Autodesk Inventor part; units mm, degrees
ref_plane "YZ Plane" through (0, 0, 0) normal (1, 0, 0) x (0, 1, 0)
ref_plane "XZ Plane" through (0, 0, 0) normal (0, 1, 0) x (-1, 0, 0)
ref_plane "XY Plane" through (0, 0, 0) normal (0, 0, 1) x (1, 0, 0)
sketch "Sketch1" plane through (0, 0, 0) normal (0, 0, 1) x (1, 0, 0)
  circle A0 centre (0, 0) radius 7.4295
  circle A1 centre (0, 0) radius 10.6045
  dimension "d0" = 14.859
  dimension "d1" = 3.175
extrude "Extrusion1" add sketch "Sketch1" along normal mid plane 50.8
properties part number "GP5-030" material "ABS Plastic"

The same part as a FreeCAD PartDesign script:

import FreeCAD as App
import Part
import Sketcher
Q = App.Units.Quantity

doc = App.newDocument("Part")
params = doc.addObject("Spreadsheet::Sheet", "Params")
for row, (alias, value) in enumerate([
    ("sketch1_diameter", "0.585 in"),
    ("sketch1_diameter2", "0.835 in"),
    ("pad1_length", "2 in"),
], start=1):
    params.set(f"A{row}", alias)
    params.set(f"B{row}", "=" + value)
    params.setAlias(f"B{row}", alias)

body = doc.addObject("PartDesign::Body", "Body")

sketch1 = body.newObject("Sketcher::SketchObject", "Sketch")
sketch1.AttachmentSupport = (doc.getObject("XY_Plane"), [""])
sketch1.MapMode = "FlatFace"
sketch1.addGeometry([
    Part.Circle(App.Vector(0, 0, 0), App.Vector(0, 0, 1), 11),
    Part.Circle(App.Vector(0, 0, 0), App.Vector(0, 0, 1), 7),
], False)
sketch1.addConstraint([
    Sketcher.Constraint("Coincident", 0, 3, -1, 1),
    Sketcher.Constraint("Coincident", 1, 3, -1, 1),
    Sketcher.Constraint("Diameter", 1, Q("0.585 in")),
    Sketcher.Constraint("Diameter", 0, Q("0.835 in")),
])
sketch1.setExpression("Constraints[2]", "Params.sketch1_diameter")
sketch1.setExpression("Constraints[3]", "Params.sketch1_diameter2")
pad1 = body.newObject("PartDesign::Pad", "Pad")
pad1.Profile = sketch1
pad1.setExpression("Length", "Params.pad1_length")
pad1.Midplane = True

doc.recompute()
